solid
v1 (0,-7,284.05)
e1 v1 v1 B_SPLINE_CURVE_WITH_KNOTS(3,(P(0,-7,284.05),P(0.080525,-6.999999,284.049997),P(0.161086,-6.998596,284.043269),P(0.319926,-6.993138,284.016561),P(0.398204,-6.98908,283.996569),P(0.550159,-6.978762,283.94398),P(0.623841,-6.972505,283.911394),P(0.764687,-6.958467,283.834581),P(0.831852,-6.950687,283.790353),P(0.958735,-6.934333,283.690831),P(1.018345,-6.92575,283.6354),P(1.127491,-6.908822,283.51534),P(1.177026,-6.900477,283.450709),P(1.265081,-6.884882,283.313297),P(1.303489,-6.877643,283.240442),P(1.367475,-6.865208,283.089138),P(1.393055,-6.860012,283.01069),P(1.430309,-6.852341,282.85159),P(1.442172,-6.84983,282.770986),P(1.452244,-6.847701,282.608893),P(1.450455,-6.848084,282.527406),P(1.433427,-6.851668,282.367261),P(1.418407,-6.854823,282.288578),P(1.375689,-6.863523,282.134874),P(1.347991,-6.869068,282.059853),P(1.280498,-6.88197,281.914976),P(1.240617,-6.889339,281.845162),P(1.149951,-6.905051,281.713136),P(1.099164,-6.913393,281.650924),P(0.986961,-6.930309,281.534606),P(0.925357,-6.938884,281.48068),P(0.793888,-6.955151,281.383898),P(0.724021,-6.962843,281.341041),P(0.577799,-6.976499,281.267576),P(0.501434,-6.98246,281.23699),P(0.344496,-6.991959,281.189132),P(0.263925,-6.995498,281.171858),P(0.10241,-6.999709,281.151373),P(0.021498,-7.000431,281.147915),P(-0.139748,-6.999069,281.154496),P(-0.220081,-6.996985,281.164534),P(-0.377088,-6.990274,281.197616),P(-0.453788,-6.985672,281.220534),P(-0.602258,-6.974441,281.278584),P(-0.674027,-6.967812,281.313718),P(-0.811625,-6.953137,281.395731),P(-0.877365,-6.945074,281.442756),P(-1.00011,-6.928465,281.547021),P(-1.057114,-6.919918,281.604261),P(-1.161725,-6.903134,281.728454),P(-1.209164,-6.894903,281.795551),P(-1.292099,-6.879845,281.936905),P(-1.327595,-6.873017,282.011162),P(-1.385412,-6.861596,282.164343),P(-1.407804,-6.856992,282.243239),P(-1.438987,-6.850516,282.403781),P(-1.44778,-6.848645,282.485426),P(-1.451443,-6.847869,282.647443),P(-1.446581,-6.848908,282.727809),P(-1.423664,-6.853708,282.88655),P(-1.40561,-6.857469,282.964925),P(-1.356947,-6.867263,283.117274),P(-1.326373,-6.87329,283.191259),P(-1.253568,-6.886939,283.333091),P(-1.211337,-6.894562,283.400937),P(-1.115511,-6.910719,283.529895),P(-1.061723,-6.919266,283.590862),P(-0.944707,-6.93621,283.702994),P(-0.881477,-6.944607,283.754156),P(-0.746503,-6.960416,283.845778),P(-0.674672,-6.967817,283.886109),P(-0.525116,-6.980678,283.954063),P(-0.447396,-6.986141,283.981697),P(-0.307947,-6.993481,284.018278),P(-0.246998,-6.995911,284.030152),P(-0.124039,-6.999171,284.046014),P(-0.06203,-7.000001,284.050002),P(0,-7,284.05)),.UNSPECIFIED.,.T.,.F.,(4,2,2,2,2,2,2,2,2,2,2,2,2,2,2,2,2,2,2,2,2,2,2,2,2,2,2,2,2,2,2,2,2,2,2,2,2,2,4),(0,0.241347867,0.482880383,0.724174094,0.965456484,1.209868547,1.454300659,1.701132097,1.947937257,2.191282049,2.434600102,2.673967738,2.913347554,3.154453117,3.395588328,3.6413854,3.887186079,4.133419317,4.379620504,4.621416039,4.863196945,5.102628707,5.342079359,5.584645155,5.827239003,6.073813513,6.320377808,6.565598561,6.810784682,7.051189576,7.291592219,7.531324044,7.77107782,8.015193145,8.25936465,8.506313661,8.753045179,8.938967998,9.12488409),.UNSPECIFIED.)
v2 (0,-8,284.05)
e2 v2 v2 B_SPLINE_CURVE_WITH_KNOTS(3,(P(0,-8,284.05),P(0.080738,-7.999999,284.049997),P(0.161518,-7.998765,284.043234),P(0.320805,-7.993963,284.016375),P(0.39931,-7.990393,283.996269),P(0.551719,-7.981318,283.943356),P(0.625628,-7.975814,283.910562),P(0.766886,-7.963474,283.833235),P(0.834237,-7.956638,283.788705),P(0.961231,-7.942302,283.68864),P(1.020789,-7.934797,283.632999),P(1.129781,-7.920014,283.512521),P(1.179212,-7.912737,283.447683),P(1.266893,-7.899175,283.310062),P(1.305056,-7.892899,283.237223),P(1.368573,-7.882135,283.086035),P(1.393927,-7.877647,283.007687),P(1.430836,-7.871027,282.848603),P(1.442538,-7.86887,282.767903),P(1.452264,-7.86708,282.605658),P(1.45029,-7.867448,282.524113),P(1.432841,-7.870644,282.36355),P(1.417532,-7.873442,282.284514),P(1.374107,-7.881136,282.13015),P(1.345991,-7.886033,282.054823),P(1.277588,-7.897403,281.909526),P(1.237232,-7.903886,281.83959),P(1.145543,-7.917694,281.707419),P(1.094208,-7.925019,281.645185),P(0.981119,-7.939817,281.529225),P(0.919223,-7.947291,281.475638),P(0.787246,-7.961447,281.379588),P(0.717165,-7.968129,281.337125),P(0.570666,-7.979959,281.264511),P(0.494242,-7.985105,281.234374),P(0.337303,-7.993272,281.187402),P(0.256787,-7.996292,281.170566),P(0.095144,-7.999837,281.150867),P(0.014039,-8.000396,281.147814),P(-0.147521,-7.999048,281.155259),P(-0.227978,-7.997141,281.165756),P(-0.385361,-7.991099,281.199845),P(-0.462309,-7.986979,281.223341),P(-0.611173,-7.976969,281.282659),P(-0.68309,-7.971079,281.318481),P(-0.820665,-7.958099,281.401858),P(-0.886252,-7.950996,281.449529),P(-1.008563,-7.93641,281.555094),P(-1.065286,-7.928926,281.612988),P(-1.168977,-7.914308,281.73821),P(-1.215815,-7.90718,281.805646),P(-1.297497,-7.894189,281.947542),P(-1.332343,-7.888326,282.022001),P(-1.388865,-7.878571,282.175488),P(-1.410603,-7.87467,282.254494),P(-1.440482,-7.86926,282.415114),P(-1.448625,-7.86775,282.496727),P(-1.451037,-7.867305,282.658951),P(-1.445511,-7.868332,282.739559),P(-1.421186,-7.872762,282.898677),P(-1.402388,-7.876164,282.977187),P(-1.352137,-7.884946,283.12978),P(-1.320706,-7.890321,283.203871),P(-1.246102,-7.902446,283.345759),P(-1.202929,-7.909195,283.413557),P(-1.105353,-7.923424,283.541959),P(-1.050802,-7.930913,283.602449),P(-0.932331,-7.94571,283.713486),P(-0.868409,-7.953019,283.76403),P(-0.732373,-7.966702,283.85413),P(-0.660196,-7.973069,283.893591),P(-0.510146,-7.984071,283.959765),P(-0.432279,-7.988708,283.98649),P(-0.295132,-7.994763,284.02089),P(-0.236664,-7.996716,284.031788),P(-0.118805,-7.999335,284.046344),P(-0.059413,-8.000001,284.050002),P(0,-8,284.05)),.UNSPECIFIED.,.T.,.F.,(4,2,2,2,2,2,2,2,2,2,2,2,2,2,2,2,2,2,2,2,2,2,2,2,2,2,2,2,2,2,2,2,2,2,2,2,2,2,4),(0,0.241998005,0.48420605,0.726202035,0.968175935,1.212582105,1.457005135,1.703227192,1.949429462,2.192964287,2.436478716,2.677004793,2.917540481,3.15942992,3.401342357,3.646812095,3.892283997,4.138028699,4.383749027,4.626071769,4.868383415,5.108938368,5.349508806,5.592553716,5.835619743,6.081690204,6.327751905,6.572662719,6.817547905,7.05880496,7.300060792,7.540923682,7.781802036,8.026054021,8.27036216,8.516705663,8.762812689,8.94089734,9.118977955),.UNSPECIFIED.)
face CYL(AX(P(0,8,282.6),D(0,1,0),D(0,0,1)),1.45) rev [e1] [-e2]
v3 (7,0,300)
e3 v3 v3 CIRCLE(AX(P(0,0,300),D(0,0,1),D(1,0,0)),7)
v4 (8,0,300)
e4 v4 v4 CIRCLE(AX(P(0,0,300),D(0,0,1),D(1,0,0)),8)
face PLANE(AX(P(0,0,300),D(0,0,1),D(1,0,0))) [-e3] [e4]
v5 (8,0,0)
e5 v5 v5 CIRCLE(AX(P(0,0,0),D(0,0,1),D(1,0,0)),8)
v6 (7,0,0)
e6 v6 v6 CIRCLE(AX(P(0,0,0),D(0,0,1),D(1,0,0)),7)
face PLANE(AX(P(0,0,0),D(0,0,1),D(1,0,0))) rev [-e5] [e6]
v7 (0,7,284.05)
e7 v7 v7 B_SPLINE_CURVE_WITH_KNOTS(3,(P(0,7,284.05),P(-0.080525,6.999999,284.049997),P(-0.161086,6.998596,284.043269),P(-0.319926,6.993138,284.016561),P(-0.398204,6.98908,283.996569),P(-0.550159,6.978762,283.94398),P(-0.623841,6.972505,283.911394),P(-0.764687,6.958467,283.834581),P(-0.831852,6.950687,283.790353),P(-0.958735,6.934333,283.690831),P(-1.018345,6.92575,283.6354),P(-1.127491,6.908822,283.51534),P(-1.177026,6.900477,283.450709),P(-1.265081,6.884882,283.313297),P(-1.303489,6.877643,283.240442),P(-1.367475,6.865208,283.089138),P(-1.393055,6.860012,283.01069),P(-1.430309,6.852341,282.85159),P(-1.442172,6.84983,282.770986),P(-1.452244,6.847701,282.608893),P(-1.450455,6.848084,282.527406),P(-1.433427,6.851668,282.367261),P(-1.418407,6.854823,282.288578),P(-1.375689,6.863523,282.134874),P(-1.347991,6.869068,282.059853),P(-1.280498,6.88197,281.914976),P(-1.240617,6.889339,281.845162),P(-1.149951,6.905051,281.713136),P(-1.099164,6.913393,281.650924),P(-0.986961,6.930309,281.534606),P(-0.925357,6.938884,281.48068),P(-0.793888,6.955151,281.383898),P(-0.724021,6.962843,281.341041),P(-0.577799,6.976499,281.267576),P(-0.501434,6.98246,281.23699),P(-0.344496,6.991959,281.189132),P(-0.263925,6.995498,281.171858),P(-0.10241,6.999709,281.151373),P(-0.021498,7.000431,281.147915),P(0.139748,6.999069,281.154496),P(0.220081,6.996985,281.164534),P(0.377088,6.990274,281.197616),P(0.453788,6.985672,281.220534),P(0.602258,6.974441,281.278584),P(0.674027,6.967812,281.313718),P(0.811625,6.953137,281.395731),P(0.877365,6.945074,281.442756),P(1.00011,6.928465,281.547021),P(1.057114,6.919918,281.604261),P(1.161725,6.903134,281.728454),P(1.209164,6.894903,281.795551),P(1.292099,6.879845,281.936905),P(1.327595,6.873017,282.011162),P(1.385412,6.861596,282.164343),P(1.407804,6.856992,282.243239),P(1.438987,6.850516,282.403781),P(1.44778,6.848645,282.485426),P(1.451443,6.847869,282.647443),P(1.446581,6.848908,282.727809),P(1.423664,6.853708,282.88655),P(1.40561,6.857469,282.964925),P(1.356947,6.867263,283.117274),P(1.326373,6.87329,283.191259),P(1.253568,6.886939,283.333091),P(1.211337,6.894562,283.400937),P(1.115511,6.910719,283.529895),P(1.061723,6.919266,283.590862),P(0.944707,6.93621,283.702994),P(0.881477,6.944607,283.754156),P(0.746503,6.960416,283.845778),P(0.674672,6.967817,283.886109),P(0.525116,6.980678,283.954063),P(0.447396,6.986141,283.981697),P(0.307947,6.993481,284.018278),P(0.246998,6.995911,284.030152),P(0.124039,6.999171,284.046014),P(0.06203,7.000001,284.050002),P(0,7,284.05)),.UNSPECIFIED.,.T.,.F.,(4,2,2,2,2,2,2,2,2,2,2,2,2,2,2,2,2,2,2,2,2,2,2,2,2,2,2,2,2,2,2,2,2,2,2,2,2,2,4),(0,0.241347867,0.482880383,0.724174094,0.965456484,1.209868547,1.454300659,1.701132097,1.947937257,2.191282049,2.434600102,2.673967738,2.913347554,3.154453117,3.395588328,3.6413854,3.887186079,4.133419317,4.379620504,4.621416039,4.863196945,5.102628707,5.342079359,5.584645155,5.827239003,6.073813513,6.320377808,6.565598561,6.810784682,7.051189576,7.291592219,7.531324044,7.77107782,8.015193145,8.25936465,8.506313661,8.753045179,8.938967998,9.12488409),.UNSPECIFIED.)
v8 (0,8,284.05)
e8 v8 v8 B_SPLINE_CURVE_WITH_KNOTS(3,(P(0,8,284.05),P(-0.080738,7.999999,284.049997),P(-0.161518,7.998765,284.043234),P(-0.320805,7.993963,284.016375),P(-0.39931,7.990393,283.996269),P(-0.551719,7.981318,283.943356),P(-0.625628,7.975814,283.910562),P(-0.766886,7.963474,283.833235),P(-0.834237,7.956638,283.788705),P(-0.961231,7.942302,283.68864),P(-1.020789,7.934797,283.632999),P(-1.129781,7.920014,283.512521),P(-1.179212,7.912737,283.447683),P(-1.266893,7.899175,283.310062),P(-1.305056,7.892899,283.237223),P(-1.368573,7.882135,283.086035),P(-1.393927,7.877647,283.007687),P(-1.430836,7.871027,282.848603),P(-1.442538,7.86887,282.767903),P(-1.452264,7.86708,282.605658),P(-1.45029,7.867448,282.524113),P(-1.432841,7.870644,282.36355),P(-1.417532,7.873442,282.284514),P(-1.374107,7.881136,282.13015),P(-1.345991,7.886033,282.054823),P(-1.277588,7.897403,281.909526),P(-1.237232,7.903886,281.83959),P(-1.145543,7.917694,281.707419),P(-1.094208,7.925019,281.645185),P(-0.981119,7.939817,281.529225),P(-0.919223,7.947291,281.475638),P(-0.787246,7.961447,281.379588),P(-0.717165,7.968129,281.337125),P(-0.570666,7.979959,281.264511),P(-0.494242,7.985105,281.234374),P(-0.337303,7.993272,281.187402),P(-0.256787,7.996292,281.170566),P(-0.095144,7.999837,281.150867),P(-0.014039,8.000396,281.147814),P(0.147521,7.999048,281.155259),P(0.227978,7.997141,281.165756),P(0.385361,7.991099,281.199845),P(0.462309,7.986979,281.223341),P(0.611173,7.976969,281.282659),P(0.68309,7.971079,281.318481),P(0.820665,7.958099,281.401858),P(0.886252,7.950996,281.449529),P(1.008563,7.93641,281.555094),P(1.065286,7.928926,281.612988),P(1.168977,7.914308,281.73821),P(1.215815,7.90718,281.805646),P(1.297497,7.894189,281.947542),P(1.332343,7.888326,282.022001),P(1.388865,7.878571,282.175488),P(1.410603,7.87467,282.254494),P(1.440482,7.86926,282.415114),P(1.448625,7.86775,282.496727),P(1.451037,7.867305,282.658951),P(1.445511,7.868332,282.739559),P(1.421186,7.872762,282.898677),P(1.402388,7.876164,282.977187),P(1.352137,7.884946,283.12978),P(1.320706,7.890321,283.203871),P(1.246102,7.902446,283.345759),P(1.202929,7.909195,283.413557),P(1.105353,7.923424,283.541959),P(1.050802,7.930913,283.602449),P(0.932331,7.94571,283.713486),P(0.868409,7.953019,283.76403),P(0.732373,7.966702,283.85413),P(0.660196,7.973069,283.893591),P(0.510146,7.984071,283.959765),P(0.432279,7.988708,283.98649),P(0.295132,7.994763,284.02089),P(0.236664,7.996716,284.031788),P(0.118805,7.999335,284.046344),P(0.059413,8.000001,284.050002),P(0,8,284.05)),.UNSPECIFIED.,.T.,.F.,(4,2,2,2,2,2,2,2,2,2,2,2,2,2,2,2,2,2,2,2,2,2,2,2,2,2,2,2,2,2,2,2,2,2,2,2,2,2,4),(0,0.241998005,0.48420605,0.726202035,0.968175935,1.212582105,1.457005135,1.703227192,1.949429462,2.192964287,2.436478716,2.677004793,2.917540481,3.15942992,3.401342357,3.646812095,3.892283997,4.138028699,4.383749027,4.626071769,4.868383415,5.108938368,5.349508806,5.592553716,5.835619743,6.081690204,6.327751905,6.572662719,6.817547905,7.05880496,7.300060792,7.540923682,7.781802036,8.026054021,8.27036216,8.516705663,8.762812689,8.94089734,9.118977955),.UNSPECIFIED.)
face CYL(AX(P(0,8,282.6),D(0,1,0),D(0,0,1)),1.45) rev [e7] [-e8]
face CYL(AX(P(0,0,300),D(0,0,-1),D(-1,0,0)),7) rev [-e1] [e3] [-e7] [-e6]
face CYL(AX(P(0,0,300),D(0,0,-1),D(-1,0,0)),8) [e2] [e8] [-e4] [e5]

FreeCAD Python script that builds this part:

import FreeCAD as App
import Part
import Sketcher

doc = App.newDocument("Part")
params = doc.addObject("Spreadsheet::Sheet", "Params")
for row, (alias, value) in enumerate([
    ("sketch1_diameter", "16 mm"),
    ("sketch1_diameter2", "14 mm"),
    ("pad1_length", "300 mm"),
    ("sketch2_diameter", "2.9 mm"),
    ("hole_diameter", "2.9 mm"),
], start=1):
    params.set(f"A{row}", alias)
    params.set(f"B{row}", "=" + value)
    params.setAlias(f"B{row}", alias)

body = doc.addObject("PartDesign::Body", "Body")

# Sketch on XY plane
sketch1 = body.newObject("Sketcher::SketchObject", "Sketch")
sketch1.AttachmentSupport = (doc.getObject("XY_Plane"), [""])
sketch1.MapMode = "FlatFace"
sketch1.addGeometry([
    Part.Circle(App.Vector(0, 0, 0), App.Vector(0, 0, 1), 8),
    Part.Circle(App.Vector(0, 0, 0), App.Vector(0, 0, 1), 7),
], False)
sketch1.addConstraint([
    Sketcher.Constraint("Coincident", 0, 3, -1, 1),
    Sketcher.Constraint("Coincident", 1, 3, -1, 1),
    Sketcher.Constraint("Diameter", 0, 16.0),
    Sketcher.Constraint("Diameter", 1, 14.0),
])
sketch1.setExpression("Constraints[2]", "Params.sketch1_diameter")
sketch1.setExpression("Constraints[3]", "Params.sketch1_diameter2")
pad1 = body.newObject("PartDesign::Pad", "Pad")
pad1.Profile = sketch1
pad1.setExpression("Length", "Params.pad1_length")

# Sketch on XZ plane
sketch2 = body.newObject("Sketcher::SketchObject", "Sketch001")
sketch2.AttachmentSupport = (doc.getObject("XZ_Plane"), [""])
sketch2.MapMode = "FlatFace"
sketch2.AttachmentOffset = App.Placement(App.Vector(0, 0, -8), App.Rotation())
sketch2.addGeometry(Part.Circle(App.Vector(0, 282.6, 0), App.Vector(0, 0, 1), 1.4), False)
sketch2.addConstraint([
    Sketcher.Constraint("PointOnObject", 0, 3, -2),
    Sketcher.Constraint("Diameter", 0, 2.9),
    Sketcher.Constraint("DistanceY", -1, 1, 0, 3, 282.6),
])
sketch2.setExpression("Constraints[1]", "Params.sketch2_diameter")
doc.recompute()
hole = body.newObject("PartDesign::Hole", "Hole")
hole.Profile = sketch2
hole.ThreadType = "None"
hole.setExpression("Diameter", "Params.hole_diameter")
hole.DepthType = "ThroughAll"
hole.Reversed = True

doc.recompute()
